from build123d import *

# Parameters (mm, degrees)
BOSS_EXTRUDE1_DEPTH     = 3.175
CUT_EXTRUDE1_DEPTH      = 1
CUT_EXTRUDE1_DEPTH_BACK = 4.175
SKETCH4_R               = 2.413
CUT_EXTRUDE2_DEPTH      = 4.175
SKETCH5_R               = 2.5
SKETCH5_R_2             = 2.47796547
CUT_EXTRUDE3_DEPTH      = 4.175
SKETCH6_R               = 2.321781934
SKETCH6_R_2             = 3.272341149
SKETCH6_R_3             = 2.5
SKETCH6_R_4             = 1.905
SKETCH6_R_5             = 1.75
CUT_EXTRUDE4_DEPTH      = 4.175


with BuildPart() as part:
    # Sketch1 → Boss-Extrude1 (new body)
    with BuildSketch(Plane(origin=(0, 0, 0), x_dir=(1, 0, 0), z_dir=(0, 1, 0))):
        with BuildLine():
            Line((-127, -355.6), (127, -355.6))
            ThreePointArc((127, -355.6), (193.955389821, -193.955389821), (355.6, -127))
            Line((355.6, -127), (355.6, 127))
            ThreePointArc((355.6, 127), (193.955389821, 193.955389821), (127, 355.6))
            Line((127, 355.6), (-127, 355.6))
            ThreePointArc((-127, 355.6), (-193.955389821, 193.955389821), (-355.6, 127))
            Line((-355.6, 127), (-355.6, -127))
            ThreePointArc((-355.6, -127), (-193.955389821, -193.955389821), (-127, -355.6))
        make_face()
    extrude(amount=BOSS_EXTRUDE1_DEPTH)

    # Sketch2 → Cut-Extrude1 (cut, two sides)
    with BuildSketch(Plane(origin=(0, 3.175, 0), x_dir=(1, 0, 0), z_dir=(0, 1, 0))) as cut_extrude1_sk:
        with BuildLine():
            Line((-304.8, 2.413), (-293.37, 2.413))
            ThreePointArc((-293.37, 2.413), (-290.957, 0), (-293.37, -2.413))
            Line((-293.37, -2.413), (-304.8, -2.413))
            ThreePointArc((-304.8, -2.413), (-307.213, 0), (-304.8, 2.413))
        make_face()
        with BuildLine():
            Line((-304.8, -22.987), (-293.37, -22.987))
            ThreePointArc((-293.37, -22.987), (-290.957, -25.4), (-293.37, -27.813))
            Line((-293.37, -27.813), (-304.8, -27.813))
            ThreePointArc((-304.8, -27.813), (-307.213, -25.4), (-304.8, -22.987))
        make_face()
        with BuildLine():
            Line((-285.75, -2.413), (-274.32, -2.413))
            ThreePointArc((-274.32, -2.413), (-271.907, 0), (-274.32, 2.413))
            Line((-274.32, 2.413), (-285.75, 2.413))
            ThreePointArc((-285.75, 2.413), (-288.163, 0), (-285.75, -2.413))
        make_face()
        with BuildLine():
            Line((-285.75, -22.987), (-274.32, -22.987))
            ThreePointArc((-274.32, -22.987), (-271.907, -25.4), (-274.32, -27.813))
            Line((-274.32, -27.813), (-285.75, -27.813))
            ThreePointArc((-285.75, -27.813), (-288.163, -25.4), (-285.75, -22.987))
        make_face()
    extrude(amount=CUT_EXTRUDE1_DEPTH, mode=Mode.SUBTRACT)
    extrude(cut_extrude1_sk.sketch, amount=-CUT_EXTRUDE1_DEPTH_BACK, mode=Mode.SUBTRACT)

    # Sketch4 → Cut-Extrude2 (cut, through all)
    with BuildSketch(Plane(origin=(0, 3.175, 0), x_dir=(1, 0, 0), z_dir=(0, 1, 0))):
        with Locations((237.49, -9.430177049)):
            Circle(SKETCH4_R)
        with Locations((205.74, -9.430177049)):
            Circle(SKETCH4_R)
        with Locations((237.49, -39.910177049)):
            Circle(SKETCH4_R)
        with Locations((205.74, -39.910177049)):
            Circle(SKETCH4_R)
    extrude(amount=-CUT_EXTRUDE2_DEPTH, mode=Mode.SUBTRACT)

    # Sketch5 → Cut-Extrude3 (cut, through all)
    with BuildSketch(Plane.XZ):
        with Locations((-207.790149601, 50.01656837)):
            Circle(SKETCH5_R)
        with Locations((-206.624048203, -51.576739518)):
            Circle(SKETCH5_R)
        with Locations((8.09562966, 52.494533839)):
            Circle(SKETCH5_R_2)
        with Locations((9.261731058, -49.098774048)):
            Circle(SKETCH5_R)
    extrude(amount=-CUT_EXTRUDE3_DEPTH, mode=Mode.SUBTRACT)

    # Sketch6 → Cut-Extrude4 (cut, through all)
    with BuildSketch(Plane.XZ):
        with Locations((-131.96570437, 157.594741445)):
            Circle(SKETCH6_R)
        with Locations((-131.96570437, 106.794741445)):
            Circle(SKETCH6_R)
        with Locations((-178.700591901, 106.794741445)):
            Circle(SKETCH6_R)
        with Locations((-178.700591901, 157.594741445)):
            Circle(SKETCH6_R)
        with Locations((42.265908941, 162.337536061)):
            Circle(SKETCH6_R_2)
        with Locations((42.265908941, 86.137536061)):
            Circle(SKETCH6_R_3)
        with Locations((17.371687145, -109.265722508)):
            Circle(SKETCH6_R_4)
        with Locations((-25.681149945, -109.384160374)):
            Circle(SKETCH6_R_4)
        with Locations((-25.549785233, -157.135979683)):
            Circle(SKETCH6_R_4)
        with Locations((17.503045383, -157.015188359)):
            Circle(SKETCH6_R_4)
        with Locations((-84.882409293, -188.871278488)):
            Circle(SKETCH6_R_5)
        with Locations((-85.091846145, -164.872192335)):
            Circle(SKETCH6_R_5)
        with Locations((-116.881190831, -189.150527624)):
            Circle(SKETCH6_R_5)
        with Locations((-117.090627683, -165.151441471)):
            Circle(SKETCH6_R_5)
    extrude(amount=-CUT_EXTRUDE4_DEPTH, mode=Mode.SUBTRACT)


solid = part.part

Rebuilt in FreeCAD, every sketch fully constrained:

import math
import FreeCAD as App
import Part
import Sketcher
Q = App.Units.Quantity

doc = App.newDocument("Part")
body = doc.addObject("PartDesign::Body", "Body")

# Sketch on XZ plane
sketch1 = body.newObject("Sketcher::SketchObject", "Sketch")
sketch1.AttachmentSupport = (doc.getObject("XZ_Plane"), [""])
sketch1.MapMode = "FlatFace"
sketch1.addGeometry(Part.LineSegment(App.Vector(-127, 356, 0), App.Vector(127, 356, 0)), False)
sketch1.addGeometry(Part.ArcOfCircle(Part.Circle(App.Vector(356, 356, 0), App.Vector(0, 0, 1), 229), math.radians(-180), math.radians(-90)), False)
sketch1.addGeometry(Part.LineSegment(App.Vector(356, 127, 0), App.Vector(356, -127, 0)), False)
sketch1.addGeometry(Part.ArcOfCircle(Part.Circle(App.Vector(356, -356, 0), App.Vector(0, 0, 1), 229), math.radians(90), math.radians(180)), False)
sketch1.addGeometry(Part.LineSegment(App.Vector(127, -356, 0), App.Vector(-127, -356, 0)), False)
sketch1.addGeometry(Part.ArcOfCircle(Part.Circle(App.Vector(-356, -356, 0), App.Vector(0, 0, 1), 229), math.radians(0), math.radians(90)), False)
sketch1.addGeometry(Part.LineSegment(App.Vector(-356, -127, 0), App.Vector(-356, 127, 0)), False)
sketch1.addGeometry(Part.ArcOfCircle(Part.Circle(App.Vector(-356, 356, 0), App.Vector(0, 0, 1), 229), math.radians(-90), math.radians(0)), False)
sketch1.addConstraint(Sketcher.Constraint("Coincident", 0, 2, 1, 1))
sketch1.addConstraint(Sketcher.Constraint("Coincident", 1, 2, 2, 1))
sketch1.addConstraint(Sketcher.Constraint("Coincident", 2, 2, 3, 1))
sketch1.addConstraint(Sketcher.Constraint("Coincident", 3, 2, 4, 1))
sketch1.addConstraint(Sketcher.Constraint("Coincident", 4, 2, 5, 1))
sketch1.addConstraint(Sketcher.Constraint("Coincident", 5, 2, 6, 1))
sketch1.addConstraint(Sketcher.Constraint("Coincident", 6, 2, 7, 1))
sketch1.addConstraint(Sketcher.Constraint("Coincident", 7, 2, 0, 1))
sketch1.addConstraint(Sketcher.Constraint("Horizontal", 0))
sketch1.addConstraint(Sketcher.Constraint("Vertical", 2))
sketch1.addConstraint(Sketcher.Constraint("Horizontal", 4))
sketch1.addConstraint(Sketcher.Constraint("Vertical", 6))
sketch1.addConstraint(Sketcher.Constraint("Equal", 1, 3))
sketch1.addConstraint(Sketcher.Constraint("Equal", 3, 5))
sketch1.addConstraint(Sketcher.Constraint("Equal", 5, 7))
sketch1.addConstraint(Sketcher.Constraint("Symmetric", 1, 3, 5, 3, -1, 1))
sketch1.addConstraint(Sketcher.Constraint("Symmetric", 3, 3, 7, 3, -1, 1))
sketch1.addConstraint(Sketcher.Constraint("Symmetric", 3, 3, 5, 3, -2))
sketch1.addConstraint(Sketcher.Constraint("Horizontal", 7, 3, 0, 2))
sketch1.addConstraint(Sketcher.Constraint("Horizontal", 5, 3, 3, 2))
sketch1.addConstraint(Sketcher.Constraint("Vertical", 3, 3, 1, 2))
sketch1.addConstraint(Sketcher.Constraint("Vertical", 7, 3, 5, 2))
sketch1.addConstraint(Sketcher.Constraint("Equal", 4, 2))
sketch1.addConstraint(Sketcher.Constraint("Radius", 1, Q("9 in")))
sketch1.addConstraint(Sketcher.Constraint("DistanceX", 0, 1, 0, 2, Q("10 in")))
pad1 = body.newObject("PartDesign::Pad", "Pad")
pad1.Profile = sketch1
pad1.Length = Q("0.125 in")
pad1.Reversed = True

# Sketch on XZ plane
sketch2 = body.newObject("Sketcher::SketchObject", "Sketch001")
sketch2.AttachmentSupport = (doc.getObject("XZ_Plane"), [""])
sketch2.MapMode = "FlatFace"
sketch2.AttachmentOffset = App.Placement(App.Vector(0, 0, -0.125 * 25.4), App.Rotation())
sketch2.addGeometry(Part.LineSegment(App.Vector(-293.4, -2.4, 0), App.Vector(-304.8, -2.4, 0)), False)
sketch2.addGeometry(Part.ArcOfCircle(Part.Circle(App.Vector(-304.8, 0, 0), App.Vector(0, 0, 1), 2.4), math.radians(90), math.radians(270)), False)
sketch2.addGeometry(Part.LineSegment(App.Vector(-304.8, 2.4, 0), App.Vector(-293.4, 2.4, 0)), False)
sketch2.addGeometry(Part.ArcOfCircle(Part.Circle(App.Vector(-293.4, 0, 0), App.Vector(0, 0, 1), 2.4), math.radians(-90), math.radians(90)), False)
sketch2.addGeometry(Part.LineSegment(App.Vector(-293.4, 23, 0), App.Vector(-304.8, 23, 0)), False)
sketch2.addGeometry(Part.ArcOfCircle(Part.Circle(App.Vector(-304.8, 25.4, 0), App.Vector(0, 0, 1), 2.4), math.radians(90), math.radians(270)), False)
sketch2.addGeometry(Part.LineSegment(App.Vector(-304.8, 27.8, 0), App.Vector(-293.4, 27.8, 0)), False)
sketch2.addGeometry(Part.ArcOfCircle(Part.Circle(App.Vector(-293.4, 25.4, 0), App.Vector(0, 0, 1), 2.4), math.radians(-90), math.radians(90)), False)
sketch2.addGeometry(Part.LineSegment(App.Vector(-285.8, 2.4, 0), App.Vector(-274.3, 2.4, 0)), False)
sketch2.addGeometry(Part.ArcOfCircle(Part.Circle(App.Vector(-274.3, 0, 0), App.Vector(0, 0, 1), 2.4), math.radians(-90), math.radians(90)), False)
sketch2.addGeometry(Part.LineSegment(App.Vector(-274.3, -2.4, 0), App.Vector(-285.8, -2.4, 0)), False)
sketch2.addGeometry(Part.ArcOfCircle(Part.Circle(App.Vector(-285.8, 0, 0), App.Vector(0, 0, 1), 2.4), math.radians(90), math.radians(270)), False)
sketch2.addGeometry(Part.LineSegment(App.Vector(-274.3, 23, 0), App.Vector(-285.8, 23, 0)), False)
sketch2.addGeometry(Part.ArcOfCircle(Part.Circle(App.Vector(-285.8, 25.4, 0), App.Vector(0, 0, 1), 2.4), math.radians(90), math.radians(270)), False)
sketch2.addGeometry(Part.LineSegment(App.Vector(-285.8, 27.8, 0), App.Vector(-274.3, 27.8, 0)), False)
sketch2.addGeometry(Part.ArcOfCircle(Part.Circle(App.Vector(-274.3, 25.4, 0), App.Vector(0, 0, 1), 2.4), math.radians(-90), math.radians(90)), False)
sketch2.addConstraint(Sketcher.Constraint("Tangent", 0, 2, 1, 2))
sketch2.addConstraint(Sketcher.Constraint("Tangent", 1, 1, 2, 1))
sketch2.addConstraint(Sketcher.Constraint("Tangent", 2, 2, 3, 2))
sketch2.addConstraint(Sketcher.Constraint("Tangent", 3, 1, 0, 1))
sketch2.addConstraint(Sketcher.Constraint("Tangent", 4, 2, 5, 2))
sketch2.addConstraint(Sketcher.Constraint("Tangent", 5, 1, 6, 1))
sketch2.addConstraint(Sketcher.Constraint("Tangent", 6, 2, 7, 2))
sketch2.addConstraint(Sketcher.Constraint("Tangent", 7, 1, 4, 1))
sketch2.addConstraint(Sketcher.Constraint("Tangent", 8, 2, 9, 2))
sketch2.addConstraint(Sketcher.Constraint("Tangent", 9, 1, 10, 1))
sketch2.addConstraint(Sketcher.Constraint("Tangent", 10, 2, 11, 2))
sketch2.addConstraint(Sketcher.Constraint("Tangent", 11, 1, 8, 1))
sketch2.addConstraint(Sketcher.Constraint("Tangent", 12, 2, 13, 2))
sketch2.addConstraint(Sketcher.Constraint("Tangent", 13, 1, 14, 1))
sketch2.addConstraint(Sketcher.Constraint("Tangent", 14, 2, 15, 2))
sketch2.addConstraint(Sketcher.Constraint("Tangent", 15, 1, 12, 1))
sketch2.addConstraint(Sketcher.Constraint("Horizontal", 0))
sketch2.addConstraint(Sketcher.Constraint("Horizontal", 2))
sketch2.addConstraint(Sketcher.Constraint("Horizontal", 4))
sketch2.addConstraint(Sketcher.Constraint("Horizontal", 6))
sketch2.addConstraint(Sketcher.Constraint("Horizontal", 8))
sketch2.addConstraint(Sketcher.Constraint("Horizontal", 10))
sketch2.addConstraint(Sketcher.Constraint("Horizontal", 12))
sketch2.addConstraint(Sketcher.Constraint("Horizontal", 14))
sketch2.addConstraint(Sketcher.Constraint("Equal", 3, 5))
sketch2.addConstraint(Sketcher.Constraint("Equal", 7, 9))
sketch2.addConstraint(Sketcher.Constraint("Equal", 11, 13))
sketch2.addConstraint(Sketcher.Constraint("PointOnObject", 1, 3, -1))
sketch2.addConstraint(Sketcher.Constraint("PointOnObject", 9, 3, -1))
sketch2.addConstraint(Sketcher.Constraint("Horizontal", 7, 3, 13, 3))
sketch2.addConstraint(Sketcher.Constraint("Vertical", 1, 3, 5, 3))
sketch2.addConstraint(Sketcher.Constraint("Vertical", 3, 3, 7, 3))
sketch2.addConstraint(Sketcher.Constraint("Vertical", 11, 3, 13, 3))
sketch2.addConstraint(Sketcher.Constraint("Vertical", 9, 3, 15, 3))
sketch2.addConstraint(Sketcher.Constraint("Equal", 6, 8))
sketch2.addConstraint(Sketcher.Constraint("DistanceX", 1, 3, -1, 1, Q("12 in")))
sketch2.addConstraint(Sketcher.Constraint("DistanceY", -1, 1, 5, 3, Q("1 in")))
sketch2.addConstraint(Sketcher.Constraint("Radius", 1, Q("0.095 in")))
sketch2.addConstraint(Sketcher.Constraint("DistanceX", 0, 2, 0, 1, Q("0.45 in")))
sketch2.addConstraint(Sketcher.Constraint("DistanceX", 9, 3, -1, 1, Q("10.8 in")))
pocket1 = body.newObject("PartDesign::Pocket", "Pocket")
pocket1.Profile = sketch2
pocket1.Type = "ThroughAll"
pocket1.Midplane = True

# Sketch on XZ plane
sketch3 = body.newObject("Sketcher::SketchObject", "Sketch002")
sketch3.AttachmentSupport = (doc.getObject("XZ_Plane"), [""])
sketch3.MapMode = "FlatFace"
sketch3.AttachmentOffset = App.Placement(App.Vector(0, 0, -0.125 * 25.4), App.Rotation())
sketch3.addGeometry(Part.Circle(App.Vector(237.5, 9.4, 0), App.Vector(0, 0, 1), 2.4), False)
sketch3.addGeometry(Part.Circle(App.Vector(205.7, 9.4, 0), App.Vector(0, 0, 1), 2.4), False)
sketch3.addGeometry(Part.Circle(App.Vector(237.5, 39.9, 0), App.Vector(0, 0, 1), 2.4), False)
sketch3.addGeometry(Part.Circle(App.Vector(205.7, 39.9, 0), App.Vector(0, 0, 1), 2.4), False)
sketch3.addConstraint(Sketcher.Constraint("Equal", 0, 1))
sketch3.addConstraint(Sketcher.Constraint("Equal", 1, 2))
sketch3.addConstraint(Sketcher.Constraint("Equal", 2, 3))
sketch3.addConstraint(Sketcher.Constraint("Horizontal", 0, 3, 1, 3))
sketch3.addConstraint(Sketcher.Constraint("Horizontal", 2, 3, 3, 3))
sketch3.addConstraint(Sketcher.Constraint("Vertical", 0, 3, 2, 3))
sketch3.addConstraint(Sketcher.Constraint("Vertical", 1, 3, 3, 3))
sketch3.addConstraint(Sketcher.Constraint("Diameter", 0, Q("0.19 in")))
sketch3.addConstraint(Sketcher.Constraint("DistanceX", -1, 1, 1, 3, Q("8.1 in")))
sketch3.addConstraint(Sketcher.Constraint("DistanceY", 0, 3, 2, 3, Q("1.2 in")))
sketch3.addConstraint(Sketcher.Constraint("DistanceX", -1, 1, 0, 3, Q("9.35 in")))
sketch3.addConstraint(Sketcher.Constraint("DistanceY", -1, 1, 0, 3, 9.430177))
pocket2 = body.newObject("PartDesign::Pocket", "Pocket001")
pocket2.Profile = sketch3
pocket2.Type = "ThroughAll"
pocket2.Reversed = True

# Sketch on XZ plane
sketch4 = body.newObject("Sketcher::SketchObject", "Sketch003")
sketch4.AttachmentSupport = (doc.getObject("XZ_Plane"), [""])
sketch4.MapMode = "FlatFace"
sketch4.addGeometry(Part.Circle(App.Vector(-207.8, 50, 0), App.Vector(0, 0, 1), 2.5), False)
sketch4.addGeometry(Part.Circle(App.Vector(-206.6, -51.6, 0), App.Vector(0, 0, 1), 2.5), False)
sketch4.addGeometry(Part.Circle(App.Vector(8.1, 52.5, 0), App.Vector(0, 0, 1), 2.5), False)
sketch4.addGeometry(Part.Circle(App.Vector(9.3, -49.1, 0), App.Vector(0, 0, 1), 2.5), False)
sketch4.addConstraint(Sketcher.Constraint("Equal", 0, 1))
sketch4.addConstraint(Sketcher.Constraint("Equal", 1, 3))
sketch4.addConstraint(Sketcher.Constraint("Diameter", 0, 5.0))
sketch4.addConstraint(Sketcher.Constraint("Diameter", 2, 4.955931))
sketch4.addConstraint(Sketcher.Constraint("DistanceX", 0, 3, 1, 3, 1.166101))
sketch4.addConstraint(Sketcher.Constraint("DistanceX", 2, 3, 3, 3, 1.166101))
sketch4.addConstraint(Sketcher.Constraint("DistanceX", 0, 3, -1, 1, 207.79015))
sketch4.addConstraint(Sketcher.Constraint("DistanceY", -1, 1, 0, 3, 50.016568))
sketch4.addConstraint(Sketcher.Constraint("DistanceY", 1, 3, -1, 1, 51.57674))
sketch4.addConstraint(Sketcher.Constraint("DistanceX", -1, 1, 2, 3, 8.09563))
sketch4.addConstraint(Sketcher.Constraint("DistanceY", -1, 1, 2, 3, 52.494534))
sketch4.addConstraint(Sketcher.Constraint("DistanceY", 3, 3, -1, 1, 49.098774))
pocket3 = body.newObject("PartDesign::Pocket", "Pocket002")
pocket3.Profile = sketch4
pocket3.Type = "ThroughAll"

# Sketch on XZ plane
sketch5 = body.newObject("Sketcher::SketchObject", "Sketch004")
sketch5.AttachmentSupport = (doc.getObject("XZ_Plane"), [""])
sketch5.MapMode = "FlatFace"
sketch5.addGeometry(Part.Circle(App.Vector(-132, 157.6, 0), App.Vector(0, 0, 1), 2.3), False)
sketch5.addGeometry(Part.Circle(App.Vector(-132, 106.8, 0), App.Vector(0, 0, 1), 2.3), False)
sketch5.addGeometry(Part.Circle(App.Vector(-178.7, 106.8, 0), App.Vector(0, 0, 1), 2.3), False)
sketch5.addGeometry(Part.Circle(App.Vector(-178.7, 157.6, 0), App.Vector(0, 0, 1), 2.3), False)
sketch5.addGeometry(Part.Circle(App.Vector(42.3, 162.3, 0), App.Vector(0, 0, 1), 3.3), False)
sketch5.addGeometry(Part.Circle(App.Vector(42.3, 86.1, 0), App.Vector(0, 0, 1), 2.5), False)
sketch5.addGeometry(Part.Circle(App.Vector(17.4, -109.3, 0), App.Vector(0, 0, 1), 1.9), False)
sketch5.addGeometry(Part.Circle(App.Vector(-25.7, -109.4, 0), App.Vector(0, 0, 1), 1.9), False)
sketch5.addGeometry(Part.Circle(App.Vector(-25.5, -157.1, 0), App.Vector(0, 0, 1), 1.9), False)
sketch5.addGeometry(Part.Circle(App.Vector(17.5, -157, 0), App.Vector(0, 0, 1), 1.9), False)
sketch5.addGeometry(Part.Circle(App.Vector(-84.9, -188.9, 0), App.Vector(0, 0, 1), 1.8), False)
sketch5.addGeometry(Part.Circle(App.Vector(-85.1, -164.9, 0), App.Vector(0, 0, 1), 1.8), False)
sketch5.addGeometry(Part.Circle(App.Vector(-116.9, -189.2, 0), App.Vector(0, 0, 1), 1.8), False)
sketch5.addGeometry(Part.Circle(App.Vector(-117.1, -165.2, 0), App.Vector(0, 0, 1), 1.8), False)
sketch5.addConstraint(Sketcher.Constraint("Equal", 0, 1))
sketch5.addConstraint(Sketcher.Constraint("Equal", 1, 2))
sketch5.addConstraint(Sketcher.Constraint("Equal", 2, 3))
sketch5.addConstraint(Sketcher.Constraint("Equal", 6, 7))
sketch5.addConstraint(Sketcher.Constraint("Equal", 7, 8))
sketch5.addConstraint(Sketcher.Constraint("Equal", 8, 9))
sketch5.addConstraint(Sketcher.Constraint("Equal", 10, 11))
sketch5.addConstraint(Sketcher.Constraint("Equal", 11, 12))
sketch5.addConstraint(Sketcher.Constraint("Equal", 12, 13))
sketch5.addConstraint(Sketcher.Constraint("Horizontal", 1, 3, 2, 3))
sketch5.addConstraint(Sketcher.Constraint("Horizontal", 0, 3, 3, 3))
sketch5.addConstraint(Sketcher.Constraint("Vertical", 0, 3, 1, 3))
sketch5.addConstraint(Sketcher.Constraint("Vertical", 2, 3, 3, 3))
sketch5.addConstraint(Sketcher.Constraint("Vertical", 4, 3, 5, 3))
sketch5.addConstraint(Sketcher.Constraint("Diameter", 6, Q("0.15 in")))
sketch5.addConstraint(Sketcher.Constraint("DistanceY", 1, 3, 0, 3, Q("2 in")))
sketch5.addConstraint(Sketcher.Constraint("DistanceY", 5, 3, 4, 3, Q("3 in")))
sketch5.addConstraint(Sketcher.Constraint("Diameter", 5, 5.0))
sketch5.addConstraint(Sketcher.Constraint("Diameter", 10, 3.5))
sketch5.addConstraint(Sketcher.Constraint("Diameter", 0, 4.643564))
sketch5.addConstraint(Sketcher.Constraint("Diameter", 4, 6.544682))
sketch5.addConstraint(Sketcher.Constraint("DistanceX", 0, 3, -1, 1, Q("5.1955002 in")))
sketch5.addConstraint(Sketcher.Constraint("DistanceY", 6, 3, -1, 1, Q("4.3018001 in")))
sketch5.addConstraint(Sketcher.Constraint("DistanceX", 3, 3, 4, 3, 220.966501))
sketch5.addConstraint(Sketcher.Constraint("DistanceY", 7, 3, 1, 3, 216.178902))
sketch5.addConstraint(Sketcher.Constraint("DistanceY", 10, 3, 8, 3, 31.735299))
sketch5.addConstraint(Sketcher.Constraint("DistanceY", -1, 1, 0, 3, 157.594741))
sketch5.addConstraint(Sketcher.Constraint("DistanceX", 2, 3, -1, 1, 178.700592))
sketch5.addConstraint(Sketcher.Constraint("DistanceX", 7, 3, -1, 1, 25.68115))
sketch5.addConstraint(Sketcher.Constraint("DistanceY", 8, 3, -1, 1, 157.13598))
sketch5.addConstraint(Sketcher.Constraint("DistanceY", 9, 3, -1, 1, 157.015188))
sketch5.addConstraint(Sketcher.Constraint("DistanceX", 10, 3, -1, 1, 84.882409))
sketch5.addConstraint(Sketcher.Constraint("DistanceX", 12, 3, -1, 1, 116.881191))
sketch5.addConstraint(Sketcher.Constraint("DistanceY", 13, 3, -1, 1, 165.151441))
sketch5.addConstraint(Sketcher.Constraint("DistanceX", 6, 3, 5, 3, 24.894222))
sketch5.addConstraint(Sketcher.Constraint("DistanceY", 6, 3, 5, 3, 195.403259))
sketch5.addConstraint(Sketcher.Constraint("DistanceX", 1, 3, 8, 3, 106.415919))
sketch5.addConstraint(Sketcher.Constraint("DistanceX", 8, 3, 9, 3, 43.052831))
sketch5.addConstraint(Sketcher.Constraint("DistanceX", 11, 3, 8, 3, 59.542061))
sketch5.addConstraint(Sketcher.Constraint("DistanceY", 11, 3, 7, 3, 55.488032))
sketch5.addConstraint(Sketcher.Constraint("DistanceY", 12, 3, 10, 3, 0.279249))
sketch5.addConstraint(Sketcher.Constraint("DistanceX", 13, 3, 11, 3, 31.998782))
pocket4 = body.newObject("PartDesign::Pocket", "Pocket003")
pocket4.Profile = sketch5
pocket4.Type = "ThroughAll"

doc.recompute()
